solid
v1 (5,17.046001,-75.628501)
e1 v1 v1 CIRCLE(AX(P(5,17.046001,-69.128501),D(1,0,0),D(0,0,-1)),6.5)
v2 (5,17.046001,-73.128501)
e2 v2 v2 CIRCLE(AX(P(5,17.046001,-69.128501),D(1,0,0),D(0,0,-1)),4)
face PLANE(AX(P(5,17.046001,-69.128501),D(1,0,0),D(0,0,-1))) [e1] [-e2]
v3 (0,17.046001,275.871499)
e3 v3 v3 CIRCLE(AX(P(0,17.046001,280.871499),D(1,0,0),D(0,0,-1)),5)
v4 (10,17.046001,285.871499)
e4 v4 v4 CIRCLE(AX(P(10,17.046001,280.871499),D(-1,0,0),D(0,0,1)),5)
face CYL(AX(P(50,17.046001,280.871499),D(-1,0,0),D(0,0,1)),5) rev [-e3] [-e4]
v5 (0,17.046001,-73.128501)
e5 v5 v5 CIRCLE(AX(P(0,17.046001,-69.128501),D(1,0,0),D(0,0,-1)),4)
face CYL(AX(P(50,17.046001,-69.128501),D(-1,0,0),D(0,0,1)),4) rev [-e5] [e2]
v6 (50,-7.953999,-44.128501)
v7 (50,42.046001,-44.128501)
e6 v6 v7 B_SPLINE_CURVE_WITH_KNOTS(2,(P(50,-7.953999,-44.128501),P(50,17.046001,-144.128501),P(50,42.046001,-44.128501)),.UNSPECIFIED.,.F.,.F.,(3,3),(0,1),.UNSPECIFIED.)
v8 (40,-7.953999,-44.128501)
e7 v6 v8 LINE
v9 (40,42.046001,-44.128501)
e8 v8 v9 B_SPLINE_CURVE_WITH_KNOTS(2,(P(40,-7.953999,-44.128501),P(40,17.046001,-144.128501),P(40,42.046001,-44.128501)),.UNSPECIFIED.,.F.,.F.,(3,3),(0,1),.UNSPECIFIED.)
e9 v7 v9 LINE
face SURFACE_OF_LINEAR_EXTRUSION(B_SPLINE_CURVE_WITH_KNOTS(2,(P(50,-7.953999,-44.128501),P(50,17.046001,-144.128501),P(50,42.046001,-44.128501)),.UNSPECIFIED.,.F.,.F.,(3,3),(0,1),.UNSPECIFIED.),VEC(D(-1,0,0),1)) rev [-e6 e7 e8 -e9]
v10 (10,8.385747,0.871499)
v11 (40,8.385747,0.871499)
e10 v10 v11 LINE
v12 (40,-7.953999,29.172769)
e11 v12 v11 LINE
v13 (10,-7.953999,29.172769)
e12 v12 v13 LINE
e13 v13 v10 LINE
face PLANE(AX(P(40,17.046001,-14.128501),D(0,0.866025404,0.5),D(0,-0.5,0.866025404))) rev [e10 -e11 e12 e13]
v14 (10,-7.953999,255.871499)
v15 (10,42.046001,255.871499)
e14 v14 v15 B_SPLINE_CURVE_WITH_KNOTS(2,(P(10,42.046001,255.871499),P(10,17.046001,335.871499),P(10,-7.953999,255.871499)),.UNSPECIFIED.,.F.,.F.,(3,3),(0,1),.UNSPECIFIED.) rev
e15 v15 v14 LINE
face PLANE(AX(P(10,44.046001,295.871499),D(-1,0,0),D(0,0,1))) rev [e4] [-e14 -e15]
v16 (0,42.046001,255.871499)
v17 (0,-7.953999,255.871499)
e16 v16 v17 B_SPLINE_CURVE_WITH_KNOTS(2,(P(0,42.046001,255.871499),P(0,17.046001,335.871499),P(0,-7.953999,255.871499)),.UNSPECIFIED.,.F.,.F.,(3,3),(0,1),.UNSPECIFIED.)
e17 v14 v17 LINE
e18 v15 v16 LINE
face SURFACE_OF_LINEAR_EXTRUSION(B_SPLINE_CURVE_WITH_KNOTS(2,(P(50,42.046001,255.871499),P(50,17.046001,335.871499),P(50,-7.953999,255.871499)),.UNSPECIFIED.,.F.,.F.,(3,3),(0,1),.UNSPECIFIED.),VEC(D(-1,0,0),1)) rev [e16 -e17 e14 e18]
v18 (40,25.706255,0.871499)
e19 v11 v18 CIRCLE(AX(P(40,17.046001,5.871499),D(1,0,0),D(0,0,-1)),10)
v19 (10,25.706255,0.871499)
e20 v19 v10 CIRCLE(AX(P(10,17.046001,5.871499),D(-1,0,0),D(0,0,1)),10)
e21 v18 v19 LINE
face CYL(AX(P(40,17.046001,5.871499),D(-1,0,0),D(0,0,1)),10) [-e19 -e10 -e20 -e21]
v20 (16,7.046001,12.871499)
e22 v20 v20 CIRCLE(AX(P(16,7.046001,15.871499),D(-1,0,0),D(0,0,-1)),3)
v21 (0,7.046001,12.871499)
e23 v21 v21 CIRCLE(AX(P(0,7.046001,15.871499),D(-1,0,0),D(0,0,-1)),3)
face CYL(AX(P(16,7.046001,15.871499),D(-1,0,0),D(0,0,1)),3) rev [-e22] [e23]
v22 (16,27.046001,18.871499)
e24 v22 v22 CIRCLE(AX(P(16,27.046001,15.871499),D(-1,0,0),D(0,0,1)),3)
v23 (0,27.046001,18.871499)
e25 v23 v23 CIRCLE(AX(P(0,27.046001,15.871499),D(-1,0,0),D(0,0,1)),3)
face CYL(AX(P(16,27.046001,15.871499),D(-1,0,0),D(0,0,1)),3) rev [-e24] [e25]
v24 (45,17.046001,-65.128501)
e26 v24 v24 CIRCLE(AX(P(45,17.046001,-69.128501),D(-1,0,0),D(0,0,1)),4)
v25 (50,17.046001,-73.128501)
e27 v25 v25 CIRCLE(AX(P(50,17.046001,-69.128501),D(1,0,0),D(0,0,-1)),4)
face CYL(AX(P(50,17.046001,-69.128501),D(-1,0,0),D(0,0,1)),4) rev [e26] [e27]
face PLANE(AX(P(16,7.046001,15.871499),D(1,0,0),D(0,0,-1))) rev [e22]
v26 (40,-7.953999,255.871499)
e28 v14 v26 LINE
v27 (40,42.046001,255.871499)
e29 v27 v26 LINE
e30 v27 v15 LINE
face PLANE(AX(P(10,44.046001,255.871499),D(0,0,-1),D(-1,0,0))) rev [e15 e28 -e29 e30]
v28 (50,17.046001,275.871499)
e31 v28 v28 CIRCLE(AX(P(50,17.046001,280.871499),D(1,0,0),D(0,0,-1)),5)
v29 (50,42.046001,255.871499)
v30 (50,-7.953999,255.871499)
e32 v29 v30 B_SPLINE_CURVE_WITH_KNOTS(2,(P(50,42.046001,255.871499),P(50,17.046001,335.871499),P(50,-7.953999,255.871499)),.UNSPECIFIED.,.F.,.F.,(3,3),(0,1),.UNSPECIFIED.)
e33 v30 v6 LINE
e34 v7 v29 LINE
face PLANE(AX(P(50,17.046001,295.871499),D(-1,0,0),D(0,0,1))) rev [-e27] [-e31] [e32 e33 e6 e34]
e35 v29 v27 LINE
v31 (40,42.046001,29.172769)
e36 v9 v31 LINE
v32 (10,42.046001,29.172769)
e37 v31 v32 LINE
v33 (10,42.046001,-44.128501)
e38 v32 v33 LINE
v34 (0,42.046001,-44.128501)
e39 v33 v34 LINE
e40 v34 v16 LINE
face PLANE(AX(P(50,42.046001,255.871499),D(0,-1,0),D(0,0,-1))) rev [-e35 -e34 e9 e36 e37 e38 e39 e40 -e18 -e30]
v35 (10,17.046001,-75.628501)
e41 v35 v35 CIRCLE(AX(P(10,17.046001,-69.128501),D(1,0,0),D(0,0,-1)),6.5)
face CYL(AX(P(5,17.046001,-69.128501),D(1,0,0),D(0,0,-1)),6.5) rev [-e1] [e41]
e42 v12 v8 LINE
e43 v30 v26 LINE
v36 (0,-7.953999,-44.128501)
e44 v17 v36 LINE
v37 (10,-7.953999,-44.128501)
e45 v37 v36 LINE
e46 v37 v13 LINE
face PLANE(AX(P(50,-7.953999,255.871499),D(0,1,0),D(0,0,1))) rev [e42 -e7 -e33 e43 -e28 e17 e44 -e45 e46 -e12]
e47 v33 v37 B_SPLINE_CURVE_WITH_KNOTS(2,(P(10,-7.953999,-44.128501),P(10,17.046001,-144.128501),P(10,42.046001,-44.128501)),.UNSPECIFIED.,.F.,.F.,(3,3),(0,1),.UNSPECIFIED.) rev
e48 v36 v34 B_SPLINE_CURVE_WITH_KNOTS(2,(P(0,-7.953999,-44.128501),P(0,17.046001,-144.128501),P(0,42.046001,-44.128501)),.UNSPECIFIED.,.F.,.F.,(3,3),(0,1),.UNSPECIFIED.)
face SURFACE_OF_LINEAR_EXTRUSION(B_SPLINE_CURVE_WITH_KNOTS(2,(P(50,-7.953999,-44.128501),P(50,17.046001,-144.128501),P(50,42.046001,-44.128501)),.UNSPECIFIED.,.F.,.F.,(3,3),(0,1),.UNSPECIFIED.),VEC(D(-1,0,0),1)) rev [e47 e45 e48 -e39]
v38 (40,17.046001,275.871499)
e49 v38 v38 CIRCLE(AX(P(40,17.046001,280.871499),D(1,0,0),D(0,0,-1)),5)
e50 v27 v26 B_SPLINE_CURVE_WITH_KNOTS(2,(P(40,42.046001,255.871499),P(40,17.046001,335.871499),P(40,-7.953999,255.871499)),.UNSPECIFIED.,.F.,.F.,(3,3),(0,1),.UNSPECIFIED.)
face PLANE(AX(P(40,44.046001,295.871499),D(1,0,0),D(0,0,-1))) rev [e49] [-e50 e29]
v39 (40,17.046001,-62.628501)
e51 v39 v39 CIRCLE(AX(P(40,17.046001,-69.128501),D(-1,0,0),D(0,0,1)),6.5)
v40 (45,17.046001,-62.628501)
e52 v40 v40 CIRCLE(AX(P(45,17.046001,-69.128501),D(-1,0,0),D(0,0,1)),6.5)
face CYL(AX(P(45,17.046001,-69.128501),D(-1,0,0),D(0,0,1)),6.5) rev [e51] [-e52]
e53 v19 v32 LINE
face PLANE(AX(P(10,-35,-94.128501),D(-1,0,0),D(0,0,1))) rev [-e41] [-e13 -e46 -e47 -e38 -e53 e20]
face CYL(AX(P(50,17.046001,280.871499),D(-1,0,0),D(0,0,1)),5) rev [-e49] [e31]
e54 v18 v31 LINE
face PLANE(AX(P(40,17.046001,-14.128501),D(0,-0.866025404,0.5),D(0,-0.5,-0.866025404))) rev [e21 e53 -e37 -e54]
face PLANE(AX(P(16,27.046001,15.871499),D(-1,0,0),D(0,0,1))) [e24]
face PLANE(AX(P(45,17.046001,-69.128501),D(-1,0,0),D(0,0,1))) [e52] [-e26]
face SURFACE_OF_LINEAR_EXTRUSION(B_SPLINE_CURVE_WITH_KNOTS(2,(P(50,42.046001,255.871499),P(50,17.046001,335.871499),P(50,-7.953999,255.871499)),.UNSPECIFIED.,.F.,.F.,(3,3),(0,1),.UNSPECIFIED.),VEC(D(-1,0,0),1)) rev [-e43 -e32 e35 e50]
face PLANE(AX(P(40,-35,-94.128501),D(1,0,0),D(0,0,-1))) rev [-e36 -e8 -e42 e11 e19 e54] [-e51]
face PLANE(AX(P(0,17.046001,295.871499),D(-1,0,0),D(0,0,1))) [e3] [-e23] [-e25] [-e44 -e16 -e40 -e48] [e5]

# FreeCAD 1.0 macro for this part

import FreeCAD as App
import Part
import Sketcher
from FreeCAD import Vector
Q = App.Units.Quantity


def edges_at(feature, points):
    """Names of the edges that pass closest to the given points."""
    edges = feature.Shape.Edges
    near = lambda p: min(range(len(edges)), key=lambda i: edges[i].distToShape(Part.Vertex(*p))[0])
    return sorted({f"Edge{near(p) + 1}" for p in points})

doc = App.newDocument("Part")
body = doc.addObject("PartDesign::Body", "Body")

# Sketch on YZ plane
sketch1 = body.newObject("Sketcher::SketchObject", "Sketch")
sketch1.AttachmentSupport = (doc.getObject("YZ_Plane"), [""])
sketch1.MapMode = "FlatFace"
sketch1.addGeometry([
    Part.LineSegment(Vector(42.046001, -44.128501, 0), Vector(42.046001, 255.871499, 0)),  # 0
    Part.BSplineCurve([Vector(42.046001, 255.871499, 0), Vector(17.046001, 335.871499, 0), Vector(-7.953999, 255.871499, 0)], [3, 3], [0, 1], False, 2, [1, 1, 1], False),  # 1
    Part.LineSegment(Vector(-7.953999, 255.871499, 0), Vector(-7.953999, -44.128501, 0)),  # 2
    Part.BSplineCurve([Vector(42.046001, -44.128501, 0), Vector(17.046001, -144.128501, 0), Vector(-7.953999, -44.128501, 0)], [3, 3], [0, 1], False, 2, [1, 1, 1], False),  # 3
    Part.Circle(Vector(17.046001, -69.128501, 0), Vector(0, 0, 1), 4),  # 4
    Part.Circle(Vector(17.046001, 280.871499, 0), Vector(0, 0, 1), 5),  # 5
], False)
sketch1.addConstraint([
    Sketcher.Constraint("Block", 1),
    Sketcher.Constraint("Block", 3),
    Sketcher.Constraint("Coincident", 0, 2, 1, 1),
    Sketcher.Constraint("Coincident", 1, 2, 2, 1),
    Sketcher.Constraint("Coincident", 2, 2, 3, 2),
    Sketcher.Constraint("Coincident", 3, 1, 0, 1),
    Sketcher.Constraint("Vertical", 4, 3, 5, 3),
    Sketcher.Constraint("Diameter", 4, 8.0),
    Sketcher.Constraint("Diameter", 5, 10.0),
    Sketcher.Constraint("DistanceY", 4, 3, 5, 3, 350.0),
    Sketcher.Constraint("DistanceX", 5, 3, 0, 2, 25.0),
    Sketcher.Constraint("DistanceY", 0, 2, 5, 3, 25.0),
])
pad1 = body.newObject("PartDesign::Pad", "Pad")
pad1.Profile = sketch1
pad1.Length = 50

# Sketch on XZ plane
sketch2 = body.newObject("Sketcher::SketchObject", "Sketch001")
sketch2.AttachmentSupport = (doc.getObject("XZ_Plane"), [""])
sketch2.MapMode = "FlatFace"
sketch2.addGeometry([
    Part.LineSegment(Vector(10, -94, 0), Vector(10, -14, 0)),
    Part.LineSegment(Vector(10, -14, 0), Vector(40, -14, 0)),
    Part.LineSegment(Vector(40, -14, 0), Vector(40, -94, 0)),
    Part.LineSegment(Vector(40, -94, 0), Vector(10, -94, 0)),
], False)
sketch2.addConstraint([
    Sketcher.Constraint("Coincident", 0, 2, 1, 1),
    Sketcher.Constraint("Coincident", 1, 2, 2, 1),
    Sketcher.Constraint("Coincident", 2, 2, 3, 1),
    Sketcher.Constraint("Coincident", 3, 2, 0, 1),
    Sketcher.Constraint("Vertical", 0),
    Sketcher.Constraint("Horizontal", 1),
    Sketcher.Constraint("Vertical", 2),
    Sketcher.Constraint("Horizontal", 3),
    Sketcher.Constraint("DistanceX", 1, 1, 1, 2, 30.0),
    Sketcher.Constraint("DistanceY", 0, 1, 0, 2, 80.0),
    Sketcher.Constraint("DistanceX", -1, 1, 0, 2, 10.0),
    Sketcher.Constraint("DistanceY", 0, 2, -1, 1, 14.128501),
])
pocket1 = body.newObject("PartDesign::Pocket", "Pocket")
pocket1.Profile = sketch2
pocket1.Type = "ThroughAll"
pocket1.Midplane = True

# Sketch on XZ plane
sketch3 = body.newObject("Sketcher::SketchObject", "Sketch002")
sketch3.AttachmentSupport = (doc.getObject("XZ_Plane"), [""])
sketch3.MapMode = "FlatFace"
sketch3.AttachmentOffset = App.Placement(Vector(0, 0, 7.953999), App.Rotation())
sketch3.addGeometry([
    Part.LineSegment(Vector(10, 296, 0), Vector(10, 256, 0)),
    Part.LineSegment(Vector(10, 256, 0), Vector(40, 256, 0)),
    Part.LineSegment(Vector(40, 256, 0), Vector(40, 296, 0)),
    Part.LineSegment(Vector(40, 296, 0), Vector(10, 296, 0)),
], False)
sketch3.addConstraint([
    Sketcher.Constraint("Coincident", 0, 2, 1, 1),
    Sketcher.Constraint("Coincident", 1, 2, 2, 1),
    Sketcher.Constraint("Coincident", 2, 2, 3, 1),
    Sketcher.Constraint("Coincident", 3, 2, 0, 1),
    Sketcher.Constraint("Vertical", 0),
    Sketcher.Constraint("Horizontal", 1),
    Sketcher.Constraint("Vertical", 2),
    Sketcher.Constraint("Horizontal", 3),
    Sketcher.Constraint("DistanceX", 1, 1, 1, 2, 30.0),
    Sketcher.Constraint("DistanceY", 0, 2, 0, 1, 40.0),
    Sketcher.Constraint("DistanceX", -1, 1, 0, 2, 10.0),
    Sketcher.Constraint("DistanceY", -1, 1, 0, 2, 255.871499),
])
pocket2 = body.newObject("PartDesign::Pocket", "Pocket001")
pocket2.Profile = sketch3
pocket2.Length = 52

# Sketch on YZ plane
sketch4 = body.newObject("Sketcher::SketchObject", "Sketch003")
sketch4.AttachmentSupport = (doc.getObject("YZ_Plane"), [""])
sketch4.MapMode = "FlatFace"
sketch4.AttachmentOffset = App.Placement(Vector(0, 0, 10), App.Rotation())
sketch4.addGeometry([
    Part.LineSegment(Vector(42, -14, 0), Vector(17, -14, 0)),
    Part.LineSegment(Vector(17, -14, 0), Vector(42, 29, 0)),
    Part.LineSegment(Vector(42, 29, 0), Vector(42, -14, 0)),
], False)
sketch4.addConstraint([
    Sketcher.Constraint("Coincident", 0, 2, 1, 1),
    Sketcher.Constraint("Coincident", 1, 2, 2, 1),
    Sketcher.Constraint("Coincident", 2, 2, 0, 1),
    Sketcher.Constraint("Horizontal", 0),
    Sketcher.Constraint("Vertical", 2),
    Sketcher.Constraint("DistanceX", 0, 2, 0, 1, 25.0),
    Sketcher.Constraint("Angle", 1, Q("60 deg")),
    Sketcher.Constraint("DistanceX", -1, 1, 0, 2, 17.046001),
    Sketcher.Constraint("DistanceY", 0, 2, -1, 1, 14.128501),
])
pocket3 = body.newObject("PartDesign::Pocket", "Pocket002")
pocket3.Profile = sketch4
pocket3.Length = 30
pocket3.Reversed = True

# Sketch on YZ plane
sketch5 = body.newObject("Sketcher::SketchObject", "Sketch004")
sketch5.AttachmentSupport = (doc.getObject("YZ_Plane"), [""])
sketch5.MapMode = "FlatFace"
sketch5.AttachmentOffset = App.Placement(Vector(0, 0, 10), App.Rotation())
sketch5.addGeometry([
    Part.LineSegment(Vector(17, -14, 0), Vector(-8, -14, 0)),
    Part.LineSegment(Vector(-8, -14, 0), Vector(-8, 29, 0)),
    Part.LineSegment(Vector(-8, 29, 0), Vector(17, -14, 0)),
], False)
sketch5.addConstraint([
    Sketcher.Constraint("Coincident", 0, 2, 1, 1),
    Sketcher.Constraint("Coincident", 1, 2, 2, 1),
    Sketcher.Constraint("Coincident", 2, 2, 0, 1),
    Sketcher.Constraint("Horizontal", 0),
    Sketcher.Constraint("Vertical", 1),
    Sketcher.Constraint("DistanceX", 0, 2, 0, 1, 25.0),
    Sketcher.Constraint("Angle", 2, Q("-60 deg")),
    Sketcher.Constraint("DistanceX", 0, 2, -1, 1, 7.953999),
    Sketcher.Constraint("DistanceY", 0, 2, -1, 1, 14.128501),
])
pocket4 = body.newObject("PartDesign::Pocket", "Pocket003")
pocket4.Profile = sketch5
pocket4.Length = 30
pocket4.Reversed = True
doc.recompute()

fillet = body.newObject("PartDesign::Fillet", "Fillet")
fillet.Base = (pocket4, edges_at(pocket4, [(25, 17.046, -14.129)]))
fillet.Radius = 10

# Sketch on YZ plane
sketch6 = body.newObject("Sketcher::SketchObject", "Sketch005")
sketch6.AttachmentSupport = (doc.getObject("YZ_Plane"), [""])
sketch6.MapMode = "FlatFace"
sketch6.AttachmentOffset = App.Placement(Vector(0, 0, 40), App.Rotation())
sketch6.addGeometry(Part.Circle(Vector(17, -69, 0), Vector(0, 0, 1), 6), False)
sketch6.addConstraint([
    Sketcher.Constraint("Diameter", 0, 13.0),
    Sketcher.Constraint("DistanceX", -1, 1, 0, 3, 17.046001),
    Sketcher.Constraint("DistanceY", 0, 3, -1, 1, 69.128501),
])
pocket5 = body.newObject("PartDesign::Pocket", "Pocket004")
pocket5.Profile = sketch6
pocket5.Length = 5
pocket5.Reversed = True

# Sketch on YZ plane
sketch7 = body.newObject("Sketcher::SketchObject", "Sketch006")
sketch7.AttachmentSupport = (doc.getObject("YZ_Plane"), [""])
sketch7.MapMode = "FlatFace"
sketch7.AttachmentOffset = App.Placement(Vector(0, 0, 5), App.Rotation())
sketch7.addGeometry(Part.Circle(Vector(17, -69, 0), Vector(0, 0, 1), 6), False)
sketch7.addConstraint([
    Sketcher.Constraint("Diameter", 0, 13.0),
    Sketcher.Constraint("DistanceX", -1, 1, 0, 3, 17.046001),
    Sketcher.Constraint("DistanceY", 0, 3, -1, 1, 69.128501),
])
pocket6 = body.newObject("PartDesign::Pocket", "Pocket005")
pocket6.Profile = sketch7
pocket6.Length = 5
pocket6.Reversed = True

# Sketch on YZ plane
sketch8 = body.newObject("Sketcher::SketchObject", "Sketch007")
sketch8.AttachmentSupport = (doc.getObject("YZ_Plane"), [""])
sketch8.MapMode = "FlatFace"
sketch8.addGeometry([
    Part.Circle(Vector(7, 15.9, 0), Vector(0, 0, 1), 3),
    Part.Circle(Vector(27, 15.9, 0), Vector(0, 0, 1), 3),
], False)
sketch8.addConstraint([
    Sketcher.Constraint("Equal", 0, 1),
    Sketcher.Constraint("Horizontal", 0, 3, 1, 3),
    Sketcher.Constraint("Diameter", 0, 6.0),
    Sketcher.Constraint("DistanceX", 0, 3, 1, 3, 20.0),
    Sketcher.Constraint("DistanceX", -1, 1, 0, 3, 7.046001),
    Sketcher.Constraint("DistanceY", -1, 1, 0, 3, 15.871499),
])
pocket7 = body.newObject("PartDesign::Pocket", "Pocket006")
pocket7.Profile = sketch8
pocket7.Length = 16
pocket7.Reversed = True

doc.recompute()
